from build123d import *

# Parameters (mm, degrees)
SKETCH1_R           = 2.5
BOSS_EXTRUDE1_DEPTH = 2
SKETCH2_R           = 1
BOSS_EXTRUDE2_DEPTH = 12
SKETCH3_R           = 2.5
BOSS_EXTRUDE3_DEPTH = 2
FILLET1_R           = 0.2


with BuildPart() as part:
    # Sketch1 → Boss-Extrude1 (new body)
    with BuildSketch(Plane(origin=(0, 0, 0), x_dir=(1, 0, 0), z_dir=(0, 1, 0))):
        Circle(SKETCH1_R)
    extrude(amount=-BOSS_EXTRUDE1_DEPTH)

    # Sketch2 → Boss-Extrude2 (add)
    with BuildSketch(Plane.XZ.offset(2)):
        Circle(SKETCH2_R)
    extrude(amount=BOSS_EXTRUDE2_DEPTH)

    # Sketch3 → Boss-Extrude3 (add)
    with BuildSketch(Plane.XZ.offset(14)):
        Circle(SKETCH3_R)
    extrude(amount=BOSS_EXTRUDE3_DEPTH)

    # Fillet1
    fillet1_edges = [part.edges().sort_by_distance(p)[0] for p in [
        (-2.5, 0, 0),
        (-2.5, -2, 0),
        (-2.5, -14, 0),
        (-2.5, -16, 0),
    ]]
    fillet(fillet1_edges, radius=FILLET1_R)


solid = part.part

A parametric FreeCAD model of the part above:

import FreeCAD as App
import Part
import Sketcher
from FreeCAD import Vector
Q = App.Units.Quantity


def edges_at(feature, points):
    """Names of the edges that pass closest to the given points."""
    edges = feature.Shape.Edges
    near = lambda p: min(range(len(edges)), key=lambda i: edges[i].distToShape(Part.Vertex(*p))[0])
    return sorted({f"Edge{near(p) + 1}" for p in points})

doc = App.newDocument("Part")
body = doc.addObject("PartDesign::Body", "Body")

sketch1 = doc.addObject("Sketcher::SketchObject", "Sketch")
body.addObject(sketch1)
sketch1.AttachmentSupport = (doc.XZ_Plane, [""])
sketch1.MapMode = "FlatFace"
sketch1.addGeometry(Part.Circle(Vector(0, 0, 0), Vector(0, 0, 1), 2.5), False)
sketch1.addConstraint([
    Sketcher.Constraint("Coincident", 0, 3, -1, 1),
    Sketcher.Constraint("Diameter", 0, Q("5 mm")),
])
pad1 = doc.addObject("PartDesign::Pad", "Pad")
body.addObject(pad1)
pad1.Profile = sketch1
pad1.Length = 2

sketch2 = doc.addObject("Sketcher::SketchObject", "Sketch001")
body.addObject(sketch2)
sketch2.AttachmentSupport = (doc.XZ_Plane, [""])
sketch2.MapMode = "FlatFace"
sketch2.AttachmentOffset = App.Placement(Vector(0, 0, 2), App.Rotation())
sketch2.addGeometry(Part.Circle(Vector(0, 0, 0), Vector(0, 0, 1), 1), False)
sketch2.addConstraint([
    Sketcher.Constraint("Coincident", 0, 3, -1, 1),
    Sketcher.Constraint("Diameter", 0, Q("2 mm")),
])
pad2 = doc.addObject("PartDesign::Pad", "Pad001")
body.addObject(pad2)
pad2.Profile = sketch2
pad2.Length = 12

sketch3 = doc.addObject("Sketcher::SketchObject", "Sketch002")
body.addObject(sketch3)
sketch3.AttachmentSupport = (doc.XZ_Plane, [""])
sketch3.MapMode = "FlatFace"
sketch3.AttachmentOffset = App.Placement(Vector(0, 0, 14), App.Rotation())
sketch3.addGeometry(Part.Circle(Vector(0, 0, 0), Vector(0, 0, 1), 2.5), False)
sketch3.addConstraint([
    Sketcher.Constraint("Coincident", 0, 3, -1, 1),
    Sketcher.Constraint("Diameter", 0, Q("5 mm")),
])
pad3 = doc.addObject("PartDesign::Pad", "Pad002")
body.addObject(pad3)
pad3.Profile = sketch3
pad3.Length = 2
doc.recompute()

fillet = doc.addObject("PartDesign::Fillet", "Fillet")
body.addObject(fillet)
fillet.Base = (pad3, edges_at(pad3, [
    (-2.5, 0, 0),
    (-2.5, -2, 0),
    (-2.5, -14, 0),
    (-2.5, -16, 0),
]))
fillet.Radius = 0.2

doc.recompute()
